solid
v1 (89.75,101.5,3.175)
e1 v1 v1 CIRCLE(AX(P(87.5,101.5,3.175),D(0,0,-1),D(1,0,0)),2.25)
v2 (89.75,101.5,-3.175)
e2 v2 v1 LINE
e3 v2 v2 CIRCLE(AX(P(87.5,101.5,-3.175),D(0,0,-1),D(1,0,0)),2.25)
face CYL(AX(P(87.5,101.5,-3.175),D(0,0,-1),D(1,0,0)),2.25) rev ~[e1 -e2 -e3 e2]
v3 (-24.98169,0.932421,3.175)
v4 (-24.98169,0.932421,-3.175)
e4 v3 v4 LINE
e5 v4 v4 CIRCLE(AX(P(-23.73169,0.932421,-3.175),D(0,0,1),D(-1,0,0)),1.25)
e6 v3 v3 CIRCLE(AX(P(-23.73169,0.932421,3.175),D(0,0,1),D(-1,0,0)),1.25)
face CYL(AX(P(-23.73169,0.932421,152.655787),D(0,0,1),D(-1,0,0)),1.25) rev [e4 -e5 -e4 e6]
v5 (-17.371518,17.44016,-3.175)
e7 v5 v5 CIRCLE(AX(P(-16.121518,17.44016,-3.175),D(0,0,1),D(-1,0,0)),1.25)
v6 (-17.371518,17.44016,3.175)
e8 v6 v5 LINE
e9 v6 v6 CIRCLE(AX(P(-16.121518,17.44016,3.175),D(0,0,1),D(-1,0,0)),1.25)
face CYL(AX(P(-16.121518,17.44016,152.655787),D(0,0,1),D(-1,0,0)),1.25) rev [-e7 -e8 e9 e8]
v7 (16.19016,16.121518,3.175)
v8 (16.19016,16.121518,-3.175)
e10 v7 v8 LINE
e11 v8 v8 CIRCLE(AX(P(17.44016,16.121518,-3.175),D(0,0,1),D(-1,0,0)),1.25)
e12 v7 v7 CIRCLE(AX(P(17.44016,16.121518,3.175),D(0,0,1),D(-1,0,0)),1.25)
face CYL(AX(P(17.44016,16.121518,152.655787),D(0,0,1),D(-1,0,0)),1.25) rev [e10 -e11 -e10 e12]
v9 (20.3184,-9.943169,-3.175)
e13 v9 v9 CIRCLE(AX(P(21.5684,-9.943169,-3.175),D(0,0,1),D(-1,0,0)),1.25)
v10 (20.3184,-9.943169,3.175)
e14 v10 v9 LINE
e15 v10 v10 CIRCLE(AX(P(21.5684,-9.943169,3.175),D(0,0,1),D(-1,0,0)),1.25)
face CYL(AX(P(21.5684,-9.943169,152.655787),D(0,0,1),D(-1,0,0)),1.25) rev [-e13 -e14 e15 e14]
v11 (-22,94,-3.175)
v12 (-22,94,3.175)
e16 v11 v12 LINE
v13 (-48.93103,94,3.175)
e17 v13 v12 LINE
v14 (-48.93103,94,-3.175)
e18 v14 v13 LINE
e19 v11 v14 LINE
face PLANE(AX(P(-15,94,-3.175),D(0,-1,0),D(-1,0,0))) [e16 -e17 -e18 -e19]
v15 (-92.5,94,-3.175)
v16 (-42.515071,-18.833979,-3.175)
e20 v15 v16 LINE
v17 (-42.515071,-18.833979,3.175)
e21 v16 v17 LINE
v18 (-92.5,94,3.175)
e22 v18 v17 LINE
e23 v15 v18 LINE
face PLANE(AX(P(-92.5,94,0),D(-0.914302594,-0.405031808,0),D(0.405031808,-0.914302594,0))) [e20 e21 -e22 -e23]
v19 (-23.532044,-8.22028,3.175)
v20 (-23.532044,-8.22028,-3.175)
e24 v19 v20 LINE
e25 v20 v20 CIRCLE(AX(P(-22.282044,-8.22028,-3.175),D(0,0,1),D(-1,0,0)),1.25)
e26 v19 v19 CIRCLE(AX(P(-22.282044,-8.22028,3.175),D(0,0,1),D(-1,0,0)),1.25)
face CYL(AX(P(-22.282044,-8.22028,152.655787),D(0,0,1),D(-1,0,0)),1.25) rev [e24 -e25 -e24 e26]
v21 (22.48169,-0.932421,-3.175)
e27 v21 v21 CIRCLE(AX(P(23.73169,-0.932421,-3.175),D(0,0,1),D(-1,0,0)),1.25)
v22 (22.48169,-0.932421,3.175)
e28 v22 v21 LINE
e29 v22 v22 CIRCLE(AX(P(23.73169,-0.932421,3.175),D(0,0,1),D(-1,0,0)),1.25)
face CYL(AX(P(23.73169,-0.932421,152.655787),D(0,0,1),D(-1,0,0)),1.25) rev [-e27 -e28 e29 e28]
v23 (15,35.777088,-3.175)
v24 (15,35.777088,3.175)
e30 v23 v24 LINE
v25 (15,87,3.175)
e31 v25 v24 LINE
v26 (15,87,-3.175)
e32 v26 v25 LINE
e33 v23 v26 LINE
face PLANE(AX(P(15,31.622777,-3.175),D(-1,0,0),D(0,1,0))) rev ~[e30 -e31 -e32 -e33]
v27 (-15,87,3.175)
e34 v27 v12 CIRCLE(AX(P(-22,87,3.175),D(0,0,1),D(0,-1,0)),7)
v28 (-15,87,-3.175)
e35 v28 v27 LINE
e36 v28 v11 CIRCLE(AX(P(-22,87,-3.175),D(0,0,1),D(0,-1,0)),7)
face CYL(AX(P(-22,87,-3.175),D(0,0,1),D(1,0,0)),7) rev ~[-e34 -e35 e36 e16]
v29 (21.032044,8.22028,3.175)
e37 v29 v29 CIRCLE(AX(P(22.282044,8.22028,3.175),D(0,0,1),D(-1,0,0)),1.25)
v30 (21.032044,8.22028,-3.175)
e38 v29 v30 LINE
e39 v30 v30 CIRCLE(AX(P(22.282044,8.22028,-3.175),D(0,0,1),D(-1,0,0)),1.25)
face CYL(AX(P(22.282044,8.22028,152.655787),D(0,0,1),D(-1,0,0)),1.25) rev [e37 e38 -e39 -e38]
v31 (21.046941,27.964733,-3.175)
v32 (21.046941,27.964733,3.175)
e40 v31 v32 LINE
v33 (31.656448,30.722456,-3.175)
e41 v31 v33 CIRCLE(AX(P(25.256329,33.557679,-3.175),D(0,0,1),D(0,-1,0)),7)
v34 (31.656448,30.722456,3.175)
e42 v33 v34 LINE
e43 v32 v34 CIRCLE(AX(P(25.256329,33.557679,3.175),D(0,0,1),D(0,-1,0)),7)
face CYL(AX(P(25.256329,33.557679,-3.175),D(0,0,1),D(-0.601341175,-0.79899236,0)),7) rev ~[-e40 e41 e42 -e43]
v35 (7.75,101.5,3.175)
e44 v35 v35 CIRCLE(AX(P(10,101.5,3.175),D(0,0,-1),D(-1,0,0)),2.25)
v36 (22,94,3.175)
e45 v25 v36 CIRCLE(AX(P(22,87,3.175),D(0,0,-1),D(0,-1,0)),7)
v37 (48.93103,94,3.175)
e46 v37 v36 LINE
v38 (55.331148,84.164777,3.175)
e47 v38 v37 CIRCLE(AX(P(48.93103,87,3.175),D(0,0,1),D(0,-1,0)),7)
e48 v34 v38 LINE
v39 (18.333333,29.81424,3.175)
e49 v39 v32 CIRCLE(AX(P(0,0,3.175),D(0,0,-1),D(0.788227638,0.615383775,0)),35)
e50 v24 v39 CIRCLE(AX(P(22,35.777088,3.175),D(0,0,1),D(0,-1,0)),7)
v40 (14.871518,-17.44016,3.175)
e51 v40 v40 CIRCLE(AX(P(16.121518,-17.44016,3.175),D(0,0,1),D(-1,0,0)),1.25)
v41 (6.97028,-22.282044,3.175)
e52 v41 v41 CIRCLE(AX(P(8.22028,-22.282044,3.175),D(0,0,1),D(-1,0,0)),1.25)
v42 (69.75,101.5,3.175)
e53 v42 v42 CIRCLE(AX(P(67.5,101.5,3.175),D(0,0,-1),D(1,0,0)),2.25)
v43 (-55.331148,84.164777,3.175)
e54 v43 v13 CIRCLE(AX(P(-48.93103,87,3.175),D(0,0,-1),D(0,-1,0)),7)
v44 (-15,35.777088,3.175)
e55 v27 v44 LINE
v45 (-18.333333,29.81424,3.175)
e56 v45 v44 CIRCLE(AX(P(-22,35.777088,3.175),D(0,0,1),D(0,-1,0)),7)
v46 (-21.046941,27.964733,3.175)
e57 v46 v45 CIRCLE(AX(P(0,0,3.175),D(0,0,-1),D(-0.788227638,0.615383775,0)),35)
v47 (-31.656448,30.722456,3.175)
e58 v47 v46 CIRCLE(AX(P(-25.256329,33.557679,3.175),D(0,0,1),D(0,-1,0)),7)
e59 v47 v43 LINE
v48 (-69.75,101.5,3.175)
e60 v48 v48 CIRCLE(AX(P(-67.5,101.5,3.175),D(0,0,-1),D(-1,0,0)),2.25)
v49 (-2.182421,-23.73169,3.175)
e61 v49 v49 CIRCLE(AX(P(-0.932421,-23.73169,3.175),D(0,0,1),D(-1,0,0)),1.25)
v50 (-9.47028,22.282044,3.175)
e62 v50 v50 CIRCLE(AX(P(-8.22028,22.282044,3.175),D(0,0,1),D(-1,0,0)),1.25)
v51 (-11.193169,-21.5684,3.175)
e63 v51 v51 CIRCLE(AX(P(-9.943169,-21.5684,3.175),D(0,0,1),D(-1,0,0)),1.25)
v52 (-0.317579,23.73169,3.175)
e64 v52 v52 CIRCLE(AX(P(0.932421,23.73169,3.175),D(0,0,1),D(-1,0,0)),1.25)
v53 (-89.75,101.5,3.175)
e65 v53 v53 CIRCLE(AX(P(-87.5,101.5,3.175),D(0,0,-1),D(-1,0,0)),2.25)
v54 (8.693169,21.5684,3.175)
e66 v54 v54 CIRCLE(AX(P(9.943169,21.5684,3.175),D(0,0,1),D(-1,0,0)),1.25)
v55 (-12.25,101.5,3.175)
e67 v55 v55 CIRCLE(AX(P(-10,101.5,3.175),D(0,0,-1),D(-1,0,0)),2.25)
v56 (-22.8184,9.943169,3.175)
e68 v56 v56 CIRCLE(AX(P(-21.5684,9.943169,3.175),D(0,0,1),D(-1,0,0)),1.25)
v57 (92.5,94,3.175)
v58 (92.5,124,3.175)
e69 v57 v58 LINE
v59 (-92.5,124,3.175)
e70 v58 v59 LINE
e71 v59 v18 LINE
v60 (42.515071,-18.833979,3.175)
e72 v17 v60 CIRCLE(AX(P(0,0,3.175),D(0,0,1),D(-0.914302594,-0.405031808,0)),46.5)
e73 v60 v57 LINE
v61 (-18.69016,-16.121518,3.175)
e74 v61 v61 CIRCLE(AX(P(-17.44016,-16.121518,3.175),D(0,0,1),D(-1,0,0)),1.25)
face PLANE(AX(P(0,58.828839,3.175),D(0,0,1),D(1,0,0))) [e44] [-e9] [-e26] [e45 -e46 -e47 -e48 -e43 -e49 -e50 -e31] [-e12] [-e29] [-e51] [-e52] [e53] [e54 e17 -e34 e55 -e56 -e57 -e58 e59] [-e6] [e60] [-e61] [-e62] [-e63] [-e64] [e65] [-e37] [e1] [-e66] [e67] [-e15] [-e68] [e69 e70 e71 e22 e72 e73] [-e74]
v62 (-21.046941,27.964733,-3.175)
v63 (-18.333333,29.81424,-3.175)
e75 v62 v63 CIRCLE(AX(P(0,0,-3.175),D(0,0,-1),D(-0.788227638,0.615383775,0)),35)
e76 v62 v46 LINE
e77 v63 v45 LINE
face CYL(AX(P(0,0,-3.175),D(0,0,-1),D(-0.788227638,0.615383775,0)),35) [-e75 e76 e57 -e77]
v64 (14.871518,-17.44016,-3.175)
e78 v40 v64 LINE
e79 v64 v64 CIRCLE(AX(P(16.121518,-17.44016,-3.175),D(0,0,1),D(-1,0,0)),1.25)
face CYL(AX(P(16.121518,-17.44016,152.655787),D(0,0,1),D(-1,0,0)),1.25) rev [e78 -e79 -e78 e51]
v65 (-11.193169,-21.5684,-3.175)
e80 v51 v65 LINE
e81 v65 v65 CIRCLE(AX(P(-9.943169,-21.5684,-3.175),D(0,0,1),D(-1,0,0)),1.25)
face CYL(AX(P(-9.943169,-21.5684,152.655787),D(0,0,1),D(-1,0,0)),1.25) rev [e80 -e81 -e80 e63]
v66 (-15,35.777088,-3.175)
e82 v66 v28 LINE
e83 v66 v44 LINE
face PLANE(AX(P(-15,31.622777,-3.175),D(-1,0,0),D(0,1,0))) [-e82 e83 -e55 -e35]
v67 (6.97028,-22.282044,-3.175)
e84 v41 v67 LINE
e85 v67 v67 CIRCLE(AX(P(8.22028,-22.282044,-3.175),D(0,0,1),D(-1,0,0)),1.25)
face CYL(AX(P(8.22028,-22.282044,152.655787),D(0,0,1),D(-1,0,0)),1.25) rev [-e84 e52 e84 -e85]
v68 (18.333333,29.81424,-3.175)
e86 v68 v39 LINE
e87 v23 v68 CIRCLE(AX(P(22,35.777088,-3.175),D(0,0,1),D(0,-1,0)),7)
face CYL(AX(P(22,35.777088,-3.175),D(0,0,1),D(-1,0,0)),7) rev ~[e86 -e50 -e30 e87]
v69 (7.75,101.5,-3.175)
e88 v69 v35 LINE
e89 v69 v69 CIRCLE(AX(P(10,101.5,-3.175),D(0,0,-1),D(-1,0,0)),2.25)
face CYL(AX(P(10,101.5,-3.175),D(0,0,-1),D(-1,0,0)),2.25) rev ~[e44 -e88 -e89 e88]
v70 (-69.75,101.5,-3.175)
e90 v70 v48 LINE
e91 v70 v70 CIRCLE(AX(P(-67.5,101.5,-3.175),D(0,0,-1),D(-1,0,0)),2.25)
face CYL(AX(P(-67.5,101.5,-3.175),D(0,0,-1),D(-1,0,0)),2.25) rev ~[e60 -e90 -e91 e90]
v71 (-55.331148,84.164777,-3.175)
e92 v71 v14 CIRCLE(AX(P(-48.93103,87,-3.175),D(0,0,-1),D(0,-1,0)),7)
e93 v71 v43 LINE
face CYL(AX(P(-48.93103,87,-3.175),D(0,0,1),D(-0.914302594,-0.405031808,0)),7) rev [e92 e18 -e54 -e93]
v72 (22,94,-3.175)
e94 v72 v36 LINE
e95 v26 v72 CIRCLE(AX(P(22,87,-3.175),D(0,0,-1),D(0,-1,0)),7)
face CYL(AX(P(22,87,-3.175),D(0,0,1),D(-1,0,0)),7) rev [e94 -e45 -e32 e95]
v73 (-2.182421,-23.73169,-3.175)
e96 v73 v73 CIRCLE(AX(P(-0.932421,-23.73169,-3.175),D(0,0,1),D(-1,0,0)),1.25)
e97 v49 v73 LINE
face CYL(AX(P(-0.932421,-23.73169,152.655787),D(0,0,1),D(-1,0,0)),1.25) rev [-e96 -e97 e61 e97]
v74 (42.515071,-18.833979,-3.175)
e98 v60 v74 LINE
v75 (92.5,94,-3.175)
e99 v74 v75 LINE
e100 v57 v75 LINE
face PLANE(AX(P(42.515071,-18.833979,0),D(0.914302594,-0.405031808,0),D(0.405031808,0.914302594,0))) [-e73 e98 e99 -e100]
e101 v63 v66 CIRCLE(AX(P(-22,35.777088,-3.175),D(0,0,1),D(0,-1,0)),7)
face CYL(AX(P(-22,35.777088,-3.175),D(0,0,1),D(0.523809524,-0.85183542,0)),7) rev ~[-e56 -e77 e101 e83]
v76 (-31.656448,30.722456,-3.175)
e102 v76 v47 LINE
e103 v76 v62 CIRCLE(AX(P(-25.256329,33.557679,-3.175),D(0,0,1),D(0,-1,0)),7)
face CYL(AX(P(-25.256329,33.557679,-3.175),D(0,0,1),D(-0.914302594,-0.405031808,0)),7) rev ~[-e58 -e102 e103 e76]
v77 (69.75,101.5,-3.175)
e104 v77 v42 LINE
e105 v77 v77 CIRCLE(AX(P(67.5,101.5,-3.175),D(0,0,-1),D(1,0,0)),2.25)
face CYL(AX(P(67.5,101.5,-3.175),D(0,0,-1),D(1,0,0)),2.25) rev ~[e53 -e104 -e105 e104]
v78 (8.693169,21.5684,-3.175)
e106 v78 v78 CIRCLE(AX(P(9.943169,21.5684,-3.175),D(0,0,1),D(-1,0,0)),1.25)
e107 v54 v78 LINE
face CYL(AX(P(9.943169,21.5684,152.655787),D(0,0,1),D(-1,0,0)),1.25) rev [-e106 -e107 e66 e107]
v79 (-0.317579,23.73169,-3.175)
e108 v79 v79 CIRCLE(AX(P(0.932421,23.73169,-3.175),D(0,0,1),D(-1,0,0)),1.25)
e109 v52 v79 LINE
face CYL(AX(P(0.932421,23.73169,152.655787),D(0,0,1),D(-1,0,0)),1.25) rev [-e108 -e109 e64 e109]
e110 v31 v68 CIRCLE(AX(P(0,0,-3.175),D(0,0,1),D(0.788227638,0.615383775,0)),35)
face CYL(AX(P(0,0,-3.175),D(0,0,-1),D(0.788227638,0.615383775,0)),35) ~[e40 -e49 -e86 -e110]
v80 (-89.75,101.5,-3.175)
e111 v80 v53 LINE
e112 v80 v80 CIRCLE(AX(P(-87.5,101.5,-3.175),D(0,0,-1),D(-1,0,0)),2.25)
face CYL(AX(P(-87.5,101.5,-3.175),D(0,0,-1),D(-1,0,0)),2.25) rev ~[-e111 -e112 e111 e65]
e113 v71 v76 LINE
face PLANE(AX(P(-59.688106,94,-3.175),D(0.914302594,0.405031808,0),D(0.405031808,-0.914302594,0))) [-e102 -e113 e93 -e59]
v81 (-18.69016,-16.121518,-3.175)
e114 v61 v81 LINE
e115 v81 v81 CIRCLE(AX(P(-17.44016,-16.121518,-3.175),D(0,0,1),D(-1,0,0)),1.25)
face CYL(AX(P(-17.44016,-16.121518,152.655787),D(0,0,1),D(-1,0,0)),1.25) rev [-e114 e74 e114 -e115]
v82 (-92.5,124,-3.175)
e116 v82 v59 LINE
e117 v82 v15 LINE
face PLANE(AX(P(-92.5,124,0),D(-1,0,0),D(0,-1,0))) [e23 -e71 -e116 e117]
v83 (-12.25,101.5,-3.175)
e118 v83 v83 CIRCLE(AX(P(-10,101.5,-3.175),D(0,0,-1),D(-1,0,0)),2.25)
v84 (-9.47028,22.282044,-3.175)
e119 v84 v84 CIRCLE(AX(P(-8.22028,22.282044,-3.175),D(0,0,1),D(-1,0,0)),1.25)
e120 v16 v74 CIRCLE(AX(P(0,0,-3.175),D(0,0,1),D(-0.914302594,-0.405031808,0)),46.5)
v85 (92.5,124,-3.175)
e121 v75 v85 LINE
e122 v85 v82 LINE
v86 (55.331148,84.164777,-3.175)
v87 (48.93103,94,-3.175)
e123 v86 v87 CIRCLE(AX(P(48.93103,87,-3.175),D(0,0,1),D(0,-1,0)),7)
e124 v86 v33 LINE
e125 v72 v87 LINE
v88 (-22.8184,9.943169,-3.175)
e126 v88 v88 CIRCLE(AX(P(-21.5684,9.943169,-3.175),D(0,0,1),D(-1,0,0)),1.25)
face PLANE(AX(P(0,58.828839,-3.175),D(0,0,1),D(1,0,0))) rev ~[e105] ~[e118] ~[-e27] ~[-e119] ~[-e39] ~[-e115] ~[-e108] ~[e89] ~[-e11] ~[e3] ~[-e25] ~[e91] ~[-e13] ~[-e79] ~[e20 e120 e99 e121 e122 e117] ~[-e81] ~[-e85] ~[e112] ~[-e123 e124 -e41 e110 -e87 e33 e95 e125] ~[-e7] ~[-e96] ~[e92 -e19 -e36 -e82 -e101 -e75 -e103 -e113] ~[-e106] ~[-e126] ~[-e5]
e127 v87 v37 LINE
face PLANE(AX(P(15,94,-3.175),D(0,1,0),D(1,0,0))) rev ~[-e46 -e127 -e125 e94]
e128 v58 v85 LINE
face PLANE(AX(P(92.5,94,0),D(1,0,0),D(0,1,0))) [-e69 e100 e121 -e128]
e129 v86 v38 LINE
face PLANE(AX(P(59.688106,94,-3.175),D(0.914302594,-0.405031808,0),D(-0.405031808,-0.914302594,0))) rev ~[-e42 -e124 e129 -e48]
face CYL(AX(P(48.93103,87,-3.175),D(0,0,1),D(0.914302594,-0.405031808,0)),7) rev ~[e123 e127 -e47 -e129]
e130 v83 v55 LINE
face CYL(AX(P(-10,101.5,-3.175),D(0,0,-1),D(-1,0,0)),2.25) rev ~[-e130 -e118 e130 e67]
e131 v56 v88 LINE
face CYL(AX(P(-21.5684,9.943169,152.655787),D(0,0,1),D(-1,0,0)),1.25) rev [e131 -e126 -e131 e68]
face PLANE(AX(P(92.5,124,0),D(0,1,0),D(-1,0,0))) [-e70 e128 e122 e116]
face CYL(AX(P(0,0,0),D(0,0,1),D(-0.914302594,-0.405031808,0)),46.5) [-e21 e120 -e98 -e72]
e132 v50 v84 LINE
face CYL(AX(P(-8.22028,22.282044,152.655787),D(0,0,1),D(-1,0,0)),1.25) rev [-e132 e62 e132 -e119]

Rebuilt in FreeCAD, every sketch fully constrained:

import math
import FreeCAD as App
import Part
import Sketcher

V = App.Vector


def edges_at(feature, points):
    """Names of the edges that pass closest to the given points."""
    edges = feature.Shape.Edges
    near = lambda p: min(range(len(edges)), key=lambda i: edges[i].distToShape(Part.Vertex(*p))[0])
    return sorted({f"Edge{near(p) + 1}" for p in points})

doc = App.newDocument("Part")
body = doc.addObject("PartDesign::Body", "Body")

sketch1 = body.newObject("Sketcher::SketchObject", "Sketch")
sketch1.AttachmentSupport = (doc.getObject("XY_Plane"), [""])
sketch1.MapMode = "FlatFace"
sketch1.addGeometry([
    Part.LineSegment(V(92, 124, 0), V(-92, 124, 0)),
    Part.LineSegment(V(-92, 124, 0), V(-92, 94, 0)),
    Part.LineSegment(V(-92, 94, 0), V(-43, -19, 0)),
    Part.ArcOfCircle(Part.Circle(V(0, 0, 0), V(0, 0, 1), 46), math.radians(-156), math.radians(-24)),
    Part.LineSegment(V(43, -19, 0), V(92, 94, 0)),
    Part.LineSegment(V(92, 94, 0), V(92, 124, 0)),
], False)
sketch1.addConstraint([
    Sketcher.Constraint("Coincident", 0, 2, 1, 1),
    Sketcher.Constraint("Coincident", 1, 2, 2, 1),
    Sketcher.Constraint("Tangent", 2, 2, 3, 1),
    Sketcher.Constraint("Tangent", 3, 2, 4, 1),
    Sketcher.Constraint("Coincident", 4, 2, 5, 1),
    Sketcher.Constraint("Coincident", 5, 2, 0, 1),
    Sketcher.Constraint("Horizontal", 0),
    Sketcher.Constraint("Vertical", 1),
    Sketcher.Constraint("Vertical", 5),
    Sketcher.Constraint("Coincident", 3, 3, -1, 1),
    Sketcher.Constraint("Symmetric", 1, 2, 4, 2, -2),
    Sketcher.Constraint("Radius", 3, 46.5),
    Sketcher.Constraint("DistanceX", 0, 2, 0, 1, 185.0),
    Sketcher.Constraint("DistanceY", 1, 2, 1, 1, 30.0),
    Sketcher.Constraint("DistanceY", -1, 1, 0, 2, 124.0),
])
pad1 = body.newObject("PartDesign::Pad", "Pad")
pad1.Profile = sketch1
pad1.Length = 6.35
pad1.Midplane = True

sketch2 = body.newObject("Sketcher::SketchObject", "Sketch001")
sketch2.AttachmentSupport = (doc.getObject("XY_Plane"), [""])
sketch2.MapMode = "FlatFace"
sketch2.AttachmentOffset = App.Placement(V(0, 0, -3.175), App.Rotation())
sketch2.addGeometry([
    Part.Circle(V(-17.4, -16.1, 0), V(0, 0, 1), 1.2),
    Part.Circle(V(-22.3, -8.2, 0), V(0, 0, 1), 1.2),
    Part.Circle(V(-9.9, -21.6, 0), V(0, 0, 1), 1.2),
    Part.Circle(V(-0.9, -23.7, 0), V(0, 0, 1), 1.2),
    Part.Circle(V(8.2, -22.3, 0), V(0, 0, 1), 1.2),
    Part.Circle(V(16.1, -17.4, 0), V(0, 0, 1), 1.2),
    Part.Circle(V(21.6, -9.9, 0), V(0, 0, 1), 1.2),
    Part.Circle(V(23.7, -0.9, 0), V(0, 0, 1), 1.2),
    Part.Circle(V(22.3, 8.2, 0), V(0, 0, 1), 1.2),
    Part.Circle(V(17.4, 16.1, 0), V(0, 0, 1), 1.2),
    Part.Circle(V(9.9, 21.6, 0), V(0, 0, 1), 1.2),
    Part.Circle(V(0.9, 23.7, 0), V(0, 0, 1), 1.2),
    Part.Circle(V(-8.2, 22.3, 0), V(0, 0, 1), 1.2),
    Part.Circle(V(-16.1, 17.4, 0), V(0, 0, 1), 1.2),
    Part.Circle(V(-21.6, 9.9, 0), V(0, 0, 1), 1.2),
    Part.Circle(V(-23.7, 0.9, 0), V(0, 0, 1), 1.2),
], False)
sketch2.addConstraint([
    Sketcher.Constraint("Equal", 0, 1),
    Sketcher.Constraint("Equal", 1, 2),
    Sketcher.Constraint("Equal", 2, 3),
    Sketcher.Constraint("Equal", 3, 4),
    Sketcher.Constraint("Equal", 4, 5),
    Sketcher.Constraint("Equal", 5, 6),
    Sketcher.Constraint("Equal", 6, 7),
    Sketcher.Constraint("Equal", 7, 8),
    Sketcher.Constraint("Equal", 8, 9),
    Sketcher.Constraint("Equal", 9, 10),
    Sketcher.Constraint("Equal", 10, 11),
    Sketcher.Constraint("Equal", 11, 12),
    Sketcher.Constraint("Equal", 12, 13),
    Sketcher.Constraint("Equal", 13, 14),
    Sketcher.Constraint("Equal", 14, 15),
    Sketcher.Constraint("Symmetric", 1, 3, 8, 3, -1, 1),
    Sketcher.Constraint("Symmetric", 0, 3, 9, 3, -1, 1),
    Sketcher.Constraint("Symmetric", 2, 3, 10, 3, -1, 1),
    Sketcher.Constraint("Symmetric", 3, 3, 11, 3, -1, 1),
    Sketcher.Constraint("Symmetric", 4, 3, 12, 3, -1, 1),
    Sketcher.Constraint("Symmetric", 5, 3, 13, 3, -1, 1),
    Sketcher.Constraint("Symmetric", 6, 3, 14, 3, -1, 1),
    Sketcher.Constraint("Symmetric", 7, 3, 15, 3, -1, 1),
    Sketcher.Constraint("Diameter", 0, 2.5),
    Sketcher.Constraint("DistanceY", 2, 3, -1, 1, 21.5684),
    Sketcher.Constraint("DistanceX", -1, 1, 6, 3, 21.5684),
    Sketcher.Constraint("DistanceX", 3, 3, 4, 3, 9.152701),
    Sketcher.Constraint("DistanceY", 7, 3, 8, 3, 9.152701),
    Sketcher.Constraint("DistanceX", 0, 3, -1, 1, 17.44016),
    Sketcher.Constraint("DistanceY", 1, 3, -1, 1, 8.22028),
    Sketcher.Constraint("DistanceX", 2, 3, -1, 1, 9.943169),
    Sketcher.Constraint("DistanceX", 3, 3, -1, 1, 0.932421),
    Sketcher.Constraint("DistanceY", 3, 3, -1, 1, 23.73169),
    Sketcher.Constraint("DistanceY", 5, 3, -1, 1, 17.44016),
    Sketcher.Constraint("DistanceY", 6, 3, -1, 1, 9.943169),
    Sketcher.Constraint("DistanceX", -1, 1, 7, 3, 23.73169),
    Sketcher.Constraint("DistanceY", 3, 3, 0, 3, 7.610172),
    Sketcher.Constraint("DistanceX", 3, 3, 5, 3, 17.053938),
    Sketcher.Constraint("DistanceX", 1, 3, 5, 3, 38.403562),
    Sketcher.Constraint("DistanceY", 4, 3, 9, 3, 38.403562),
])
pocket1 = body.newObject("PartDesign::Pocket", "Pocket")
pocket1.Profile = sketch2
pocket1.Type = "ThroughAll"
pocket1.Midplane = True

sketch3 = body.newObject("Sketcher::SketchObject", "Sketch002")
sketch3.AttachmentSupport = (doc.getObject("XY_Plane"), [""])
sketch3.MapMode = "FlatFace"
sketch3.AttachmentOffset = App.Placement(V(0, 0, -3.175), App.Rotation())
sketch3.addGeometry([
    Part.Circle(V(-67.5, 101.5, 0), V(0, 0, 1), 2.2),
    Part.Circle(V(-87.5, 101.5, 0), V(0, 0, 1), 2.2),
    Part.Circle(V(87.5, 101.5, 0), V(0, 0, 1), 2.2),
    Part.Circle(V(67.5, 101.5, 0), V(0, 0, 1), 2.2),
    Part.Circle(V(10, 101.5, 0), V(0, 0, 1), 2.2),
    Part.Circle(V(-10, 101.5, 0), V(0, 0, 1), 2.2),
], False)
sketch3.addConstraint([
    Sketcher.Constraint("Equal", 0, 1),
    Sketcher.Constraint("Equal", 1, 2),
    Sketcher.Constraint("Equal", 2, 3),
    Sketcher.Constraint("Equal", 3, 4),
    Sketcher.Constraint("Equal", 4, 5),
    Sketcher.Constraint("Symmetric", 1, 3, 2, 3, -2),
    Sketcher.Constraint("Symmetric", 0, 3, 3, 3, -2),
    Sketcher.Constraint("Symmetric", 4, 3, 5, 3, -2),
    Sketcher.Constraint("Horizontal", 0, 3, 1, 3),
    Sketcher.Constraint("Horizontal", 3, 3, 4, 3),
    Sketcher.Constraint("Diameter", 0, 4.5),
    Sketcher.Constraint("DistanceX", -1, 1, 4, 3, 10.0),
    Sketcher.Constraint("DistanceX", 1, 3, 0, 3, 20.0),
    Sketcher.Constraint("DistanceX", 0, 3, 2, 3, 155.0),
    Sketcher.Constraint("DistanceY", -1, 1, 0, 3, 101.5),
])
pocket2 = body.newObject("PartDesign::Pocket", "Pocket001")
pocket2.Profile = sketch3
pocket2.Type = "ThroughAll"
pocket2.Reversed = True

sketch4 = body.newObject("Sketcher::SketchObject", "Sketch003")
sketch4.AttachmentSupport = (doc.getObject("XY_Plane"), [""])
sketch4.MapMode = "FlatFace"
sketch4.AttachmentOffset = App.Placement(V(0, 0, -3.175), App.Rotation())
sketch4.addGeometry([
    Part.LineSegment(V(15, 94, 0), V(60, 94, 0)),
    Part.LineSegment(V(60, 94, 0), V(28, 22, 0)),
    Part.ArcOfCircle(Part.Circle(V(0, 0, 0), V(0, 0, 1), 35), math.radians(38), math.radians(65)),
    Part.LineSegment(V(15, 32, 0), V(15, 94, 0)),
    Part.LineSegment(V(-28, 22, 0), V(-60, 94, 0)),
    Part.LineSegment(V(-60, 94, 0), V(-15, 94, 0)),
    Part.LineSegment(V(-15, 94, 0), V(-15, 32, 0)),
    Part.ArcOfCircle(Part.Circle(V(0, 0, 0), V(0, 0, 1), 35), math.radians(115), math.radians(142)),
], False)
sketch4.addConstraint([
    Sketcher.Constraint("Coincident", 0, 2, 1, 1),
    Sketcher.Constraint("Coincident", 1, 2, 2, 1),
    Sketcher.Constraint("Coincident", 2, 2, 3, 1),
    Sketcher.Constraint("Coincident", 3, 2, 0, 1),
    Sketcher.Constraint("Coincident", 4, 2, 5, 1),
    Sketcher.Constraint("Coincident", 5, 2, 6, 1),
    Sketcher.Constraint("Coincident", 6, 2, 7, 1),
    Sketcher.Constraint("Coincident", 7, 2, 4, 1),
    Sketcher.Constraint("Horizontal", 0),
    Sketcher.Constraint("Vertical", 3),
    Sketcher.Constraint("Horizontal", 5),
    Sketcher.Constraint("Vertical", 6),
    Sketcher.Constraint("Coincident", 2, 3, -1, 1),
    Sketcher.Constraint("Coincident", 7, 3, -1, 1),
    Sketcher.Constraint("Equal", 2, 7),
    Sketcher.Constraint("Symmetric", 0, 2, 4, 2, -2),
    Sketcher.Constraint("Horizontal", 2, 2, 6, 2),
    Sketcher.Constraint("Horizontal", 1, 2, 7, 2),
    Sketcher.Constraint("Radius", 2, 35.0),
    Sketcher.Constraint("DistanceY", -1, 1, 0, 2, 94.0),
    Sketcher.Constraint("DistanceX", -1, 1, 2, 2, 15.0),
    Sketcher.Constraint("DistanceX", 0, 1, 0, 2, 44.688106),
    Sketcher.Constraint("DistanceX", 1, 2, 0, 2, 32.100138),
])
pocket3 = body.newObject("PartDesign::Pocket", "Pocket002")
pocket3.Profile = sketch4
pocket3.Type = "ThroughAll"
pocket3.Reversed = True
doc.recompute()

fillet = body.newObject("PartDesign::Fillet", "Fillet")
fillet.Base = (pocket3, edges_at(pocket3, [
    (15, 94, 0),
    (15, 31.623, 0),
    (27.588, 21.538, 0),
    (59.688, 94, 0),
    (-15, 94, 0),
    (-59.688, 94, 0),
    (-27.588, 21.538, 0),
    (-15, 31.623, 0),
]))
fillet.Radius = 7

doc.recompute()
